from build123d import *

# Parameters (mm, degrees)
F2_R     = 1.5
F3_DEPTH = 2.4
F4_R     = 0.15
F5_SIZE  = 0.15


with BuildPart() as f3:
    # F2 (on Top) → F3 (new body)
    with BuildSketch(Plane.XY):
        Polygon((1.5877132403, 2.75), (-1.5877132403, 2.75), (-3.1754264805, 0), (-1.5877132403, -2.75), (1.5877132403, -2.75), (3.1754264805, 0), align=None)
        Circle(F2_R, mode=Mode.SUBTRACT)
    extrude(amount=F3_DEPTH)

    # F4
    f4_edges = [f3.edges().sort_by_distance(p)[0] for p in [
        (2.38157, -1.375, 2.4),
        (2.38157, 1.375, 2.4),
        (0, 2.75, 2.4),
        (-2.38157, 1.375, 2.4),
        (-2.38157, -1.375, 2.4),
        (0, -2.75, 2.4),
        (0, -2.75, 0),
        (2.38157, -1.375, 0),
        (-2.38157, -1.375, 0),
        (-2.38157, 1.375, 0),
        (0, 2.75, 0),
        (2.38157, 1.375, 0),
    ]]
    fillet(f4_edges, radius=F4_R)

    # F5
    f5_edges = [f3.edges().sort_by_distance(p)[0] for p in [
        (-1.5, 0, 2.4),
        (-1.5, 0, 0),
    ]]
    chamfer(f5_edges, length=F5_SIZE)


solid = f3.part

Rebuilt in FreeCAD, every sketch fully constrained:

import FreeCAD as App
import Part
import Sketcher

V = App.Vector
Q = App.Units.Quantity


def edges_at(feature, points):
    """Names of the edges that pass closest to the given points."""
    edges = feature.Shape.Edges
    near = lambda p: min(range(len(edges)), key=lambda i: edges[i].distToShape(Part.Vertex(*p))[0])
    return sorted({f"Edge{near(p) + 1}" for p in points})


def add_polygon(sketch, points):
    """Adds a closed chain of lines whose ends are joined by coincident constraints."""
    first, n = sketch.GeometryCount, len(points)
    for a, b in zip(points, points[1:] + points[:1]):
        sketch.addGeometry(Part.LineSegment(App.Vector(*a, 0), App.Vector(*b, 0)), False)
    for i in range(n):
        sketch.addConstraint(Sketcher.Constraint("Coincident", first + i, 2, first + (i + 1) % n, 1))

doc = App.newDocument("Part")
body = doc.addObject("PartDesign::Body", "Body")

# Sketch on XY plane
sketch1 = body.newObject("Sketcher::SketchObject", "Sketch")
sketch1.AttachmentSupport = (doc.getObject("XY_Plane"), [""])
sketch1.MapMode = "FlatFace"
add_polygon(sketch1, [(1.6, 2.8), (-1.6, 2.8), (-3.2, 0), (-1.6, -2.8), (1.6, -2.8), (3.2, 0)])  # lines 0-5
sketch1.addGeometry(Part.Circle(V(0, 0, 0), V(0, 0, 1), 1.5), False)  # 6
sketch1.addConstraint([
    Sketcher.Constraint("Horizontal", 0),
    Sketcher.Constraint("Horizontal", 3),
    Sketcher.Constraint("Coincident", 6, 3, -1, 1),
    Sketcher.Constraint("Symmetric", 0, 2, 3, 2, -1, 1),
    Sketcher.Constraint("Symmetric", 1, 2, 4, 2, -1, 1),
    Sketcher.Constraint("PointOnObject", 1, 2, -1),
    Sketcher.Constraint("Parallel", 2, 5),
    Sketcher.Constraint("Vertical", 0, 2, 2, 2),
    Sketcher.Constraint("Diameter", 6, Q("3 mm")),
    Sketcher.Constraint("Angle", 1, Q("-120 deg")),
    Sketcher.Constraint("DistanceY", 2, 2, 0, 2, Q("5.5 mm")),
    Sketcher.Constraint("DistanceX", 0, 2, 0, 1, Q("3.175426 mm")),
])
pad1 = body.newObject("PartDesign::Pad", "Pad")
pad1.Profile = sketch1
pad1.Length = 2.4
doc.recompute()

fillet = body.newObject("PartDesign::Fillet", "Fillet")
fillet.Base = (pad1, edges_at(pad1, [
    (2.382, -1.375, 2.4),
    (2.382, 1.375, 2.4),
    (0, 2.75, 2.4),
    (-2.382, 1.375, 2.4),
    (-2.382, -1.375, 2.4),
    (0, -2.75, 2.4),
    (0, -2.75, 0),
    (2.382, -1.375, 0),
    (-2.382, -1.375, 0),
    (-2.382, 1.375, 0),
    (0, 2.75, 0),
    (2.382, 1.375, 0),
]))
fillet.Radius = 0.15
doc.recompute()

chamfer = body.newObject("PartDesign::Chamfer", "Chamfer")
chamfer.Base = (fillet, edges_at(fillet, [(-1.5, 0, 2.4), (-1.5, 0, 0)]))
chamfer.Size = 0.15

doc.recompute()
